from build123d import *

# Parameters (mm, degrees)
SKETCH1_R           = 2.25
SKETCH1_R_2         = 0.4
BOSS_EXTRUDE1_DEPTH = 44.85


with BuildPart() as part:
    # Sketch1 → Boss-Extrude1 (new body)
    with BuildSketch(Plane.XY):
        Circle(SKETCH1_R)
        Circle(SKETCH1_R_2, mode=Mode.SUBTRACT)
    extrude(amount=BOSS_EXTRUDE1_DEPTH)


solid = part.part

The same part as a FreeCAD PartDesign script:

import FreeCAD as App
import Part
import Sketcher

V = App.Vector

doc = App.newDocument("Part")
params = doc.addObject("Spreadsheet::Sheet", "Params")
for row, (alias, value) in enumerate([
    ("sketch1_diameter", "4.5 mm"),
    ("sketch1_diameter2", "0.8 mm"),
    ("pad1_length", "44.85 mm"),
], start=1):
    params.set(f"A{row}", alias)
    params.set(f"B{row}", "=" + value)
    params.setAlias(f"B{row}", alias)

body = doc.addObject("PartDesign::Body", "Body")

sketch1 = body.newObject("Sketcher::SketchObject", "Sketch")
sketch1.AttachmentSupport = (doc.getObject("XY_Plane"), [""])
sketch1.MapMode = "FlatFace"
sketch1.addGeometry(Part.Circle(V(0, 0, 0), V(0, 0, 1), 2.25), False)
sketch1.addGeometry(Part.Circle(V(0, 0, 0), V(0, 0, 1), 0.4), False)
sketch1.addConstraint(Sketcher.Constraint("Coincident", 0, 3, -1, 1))
sketch1.addConstraint(Sketcher.Constraint("Coincident", 1, 3, -1, 1))
sketch1.addConstraint(Sketcher.Constraint("Diameter", 0, 4.5))
sketch1.addConstraint(Sketcher.Constraint("Diameter", 1, 0.8))
sketch1.setExpression("Constraints[2]", "Params.sketch1_diameter")
sketch1.setExpression("Constraints[3]", "Params.sketch1_diameter2")
pad1 = body.newObject("PartDesign::Pad", "Pad")
pad1.Profile = sketch1
pad1.setExpression("Length", "Params.pad1_length")

doc.recompute()
